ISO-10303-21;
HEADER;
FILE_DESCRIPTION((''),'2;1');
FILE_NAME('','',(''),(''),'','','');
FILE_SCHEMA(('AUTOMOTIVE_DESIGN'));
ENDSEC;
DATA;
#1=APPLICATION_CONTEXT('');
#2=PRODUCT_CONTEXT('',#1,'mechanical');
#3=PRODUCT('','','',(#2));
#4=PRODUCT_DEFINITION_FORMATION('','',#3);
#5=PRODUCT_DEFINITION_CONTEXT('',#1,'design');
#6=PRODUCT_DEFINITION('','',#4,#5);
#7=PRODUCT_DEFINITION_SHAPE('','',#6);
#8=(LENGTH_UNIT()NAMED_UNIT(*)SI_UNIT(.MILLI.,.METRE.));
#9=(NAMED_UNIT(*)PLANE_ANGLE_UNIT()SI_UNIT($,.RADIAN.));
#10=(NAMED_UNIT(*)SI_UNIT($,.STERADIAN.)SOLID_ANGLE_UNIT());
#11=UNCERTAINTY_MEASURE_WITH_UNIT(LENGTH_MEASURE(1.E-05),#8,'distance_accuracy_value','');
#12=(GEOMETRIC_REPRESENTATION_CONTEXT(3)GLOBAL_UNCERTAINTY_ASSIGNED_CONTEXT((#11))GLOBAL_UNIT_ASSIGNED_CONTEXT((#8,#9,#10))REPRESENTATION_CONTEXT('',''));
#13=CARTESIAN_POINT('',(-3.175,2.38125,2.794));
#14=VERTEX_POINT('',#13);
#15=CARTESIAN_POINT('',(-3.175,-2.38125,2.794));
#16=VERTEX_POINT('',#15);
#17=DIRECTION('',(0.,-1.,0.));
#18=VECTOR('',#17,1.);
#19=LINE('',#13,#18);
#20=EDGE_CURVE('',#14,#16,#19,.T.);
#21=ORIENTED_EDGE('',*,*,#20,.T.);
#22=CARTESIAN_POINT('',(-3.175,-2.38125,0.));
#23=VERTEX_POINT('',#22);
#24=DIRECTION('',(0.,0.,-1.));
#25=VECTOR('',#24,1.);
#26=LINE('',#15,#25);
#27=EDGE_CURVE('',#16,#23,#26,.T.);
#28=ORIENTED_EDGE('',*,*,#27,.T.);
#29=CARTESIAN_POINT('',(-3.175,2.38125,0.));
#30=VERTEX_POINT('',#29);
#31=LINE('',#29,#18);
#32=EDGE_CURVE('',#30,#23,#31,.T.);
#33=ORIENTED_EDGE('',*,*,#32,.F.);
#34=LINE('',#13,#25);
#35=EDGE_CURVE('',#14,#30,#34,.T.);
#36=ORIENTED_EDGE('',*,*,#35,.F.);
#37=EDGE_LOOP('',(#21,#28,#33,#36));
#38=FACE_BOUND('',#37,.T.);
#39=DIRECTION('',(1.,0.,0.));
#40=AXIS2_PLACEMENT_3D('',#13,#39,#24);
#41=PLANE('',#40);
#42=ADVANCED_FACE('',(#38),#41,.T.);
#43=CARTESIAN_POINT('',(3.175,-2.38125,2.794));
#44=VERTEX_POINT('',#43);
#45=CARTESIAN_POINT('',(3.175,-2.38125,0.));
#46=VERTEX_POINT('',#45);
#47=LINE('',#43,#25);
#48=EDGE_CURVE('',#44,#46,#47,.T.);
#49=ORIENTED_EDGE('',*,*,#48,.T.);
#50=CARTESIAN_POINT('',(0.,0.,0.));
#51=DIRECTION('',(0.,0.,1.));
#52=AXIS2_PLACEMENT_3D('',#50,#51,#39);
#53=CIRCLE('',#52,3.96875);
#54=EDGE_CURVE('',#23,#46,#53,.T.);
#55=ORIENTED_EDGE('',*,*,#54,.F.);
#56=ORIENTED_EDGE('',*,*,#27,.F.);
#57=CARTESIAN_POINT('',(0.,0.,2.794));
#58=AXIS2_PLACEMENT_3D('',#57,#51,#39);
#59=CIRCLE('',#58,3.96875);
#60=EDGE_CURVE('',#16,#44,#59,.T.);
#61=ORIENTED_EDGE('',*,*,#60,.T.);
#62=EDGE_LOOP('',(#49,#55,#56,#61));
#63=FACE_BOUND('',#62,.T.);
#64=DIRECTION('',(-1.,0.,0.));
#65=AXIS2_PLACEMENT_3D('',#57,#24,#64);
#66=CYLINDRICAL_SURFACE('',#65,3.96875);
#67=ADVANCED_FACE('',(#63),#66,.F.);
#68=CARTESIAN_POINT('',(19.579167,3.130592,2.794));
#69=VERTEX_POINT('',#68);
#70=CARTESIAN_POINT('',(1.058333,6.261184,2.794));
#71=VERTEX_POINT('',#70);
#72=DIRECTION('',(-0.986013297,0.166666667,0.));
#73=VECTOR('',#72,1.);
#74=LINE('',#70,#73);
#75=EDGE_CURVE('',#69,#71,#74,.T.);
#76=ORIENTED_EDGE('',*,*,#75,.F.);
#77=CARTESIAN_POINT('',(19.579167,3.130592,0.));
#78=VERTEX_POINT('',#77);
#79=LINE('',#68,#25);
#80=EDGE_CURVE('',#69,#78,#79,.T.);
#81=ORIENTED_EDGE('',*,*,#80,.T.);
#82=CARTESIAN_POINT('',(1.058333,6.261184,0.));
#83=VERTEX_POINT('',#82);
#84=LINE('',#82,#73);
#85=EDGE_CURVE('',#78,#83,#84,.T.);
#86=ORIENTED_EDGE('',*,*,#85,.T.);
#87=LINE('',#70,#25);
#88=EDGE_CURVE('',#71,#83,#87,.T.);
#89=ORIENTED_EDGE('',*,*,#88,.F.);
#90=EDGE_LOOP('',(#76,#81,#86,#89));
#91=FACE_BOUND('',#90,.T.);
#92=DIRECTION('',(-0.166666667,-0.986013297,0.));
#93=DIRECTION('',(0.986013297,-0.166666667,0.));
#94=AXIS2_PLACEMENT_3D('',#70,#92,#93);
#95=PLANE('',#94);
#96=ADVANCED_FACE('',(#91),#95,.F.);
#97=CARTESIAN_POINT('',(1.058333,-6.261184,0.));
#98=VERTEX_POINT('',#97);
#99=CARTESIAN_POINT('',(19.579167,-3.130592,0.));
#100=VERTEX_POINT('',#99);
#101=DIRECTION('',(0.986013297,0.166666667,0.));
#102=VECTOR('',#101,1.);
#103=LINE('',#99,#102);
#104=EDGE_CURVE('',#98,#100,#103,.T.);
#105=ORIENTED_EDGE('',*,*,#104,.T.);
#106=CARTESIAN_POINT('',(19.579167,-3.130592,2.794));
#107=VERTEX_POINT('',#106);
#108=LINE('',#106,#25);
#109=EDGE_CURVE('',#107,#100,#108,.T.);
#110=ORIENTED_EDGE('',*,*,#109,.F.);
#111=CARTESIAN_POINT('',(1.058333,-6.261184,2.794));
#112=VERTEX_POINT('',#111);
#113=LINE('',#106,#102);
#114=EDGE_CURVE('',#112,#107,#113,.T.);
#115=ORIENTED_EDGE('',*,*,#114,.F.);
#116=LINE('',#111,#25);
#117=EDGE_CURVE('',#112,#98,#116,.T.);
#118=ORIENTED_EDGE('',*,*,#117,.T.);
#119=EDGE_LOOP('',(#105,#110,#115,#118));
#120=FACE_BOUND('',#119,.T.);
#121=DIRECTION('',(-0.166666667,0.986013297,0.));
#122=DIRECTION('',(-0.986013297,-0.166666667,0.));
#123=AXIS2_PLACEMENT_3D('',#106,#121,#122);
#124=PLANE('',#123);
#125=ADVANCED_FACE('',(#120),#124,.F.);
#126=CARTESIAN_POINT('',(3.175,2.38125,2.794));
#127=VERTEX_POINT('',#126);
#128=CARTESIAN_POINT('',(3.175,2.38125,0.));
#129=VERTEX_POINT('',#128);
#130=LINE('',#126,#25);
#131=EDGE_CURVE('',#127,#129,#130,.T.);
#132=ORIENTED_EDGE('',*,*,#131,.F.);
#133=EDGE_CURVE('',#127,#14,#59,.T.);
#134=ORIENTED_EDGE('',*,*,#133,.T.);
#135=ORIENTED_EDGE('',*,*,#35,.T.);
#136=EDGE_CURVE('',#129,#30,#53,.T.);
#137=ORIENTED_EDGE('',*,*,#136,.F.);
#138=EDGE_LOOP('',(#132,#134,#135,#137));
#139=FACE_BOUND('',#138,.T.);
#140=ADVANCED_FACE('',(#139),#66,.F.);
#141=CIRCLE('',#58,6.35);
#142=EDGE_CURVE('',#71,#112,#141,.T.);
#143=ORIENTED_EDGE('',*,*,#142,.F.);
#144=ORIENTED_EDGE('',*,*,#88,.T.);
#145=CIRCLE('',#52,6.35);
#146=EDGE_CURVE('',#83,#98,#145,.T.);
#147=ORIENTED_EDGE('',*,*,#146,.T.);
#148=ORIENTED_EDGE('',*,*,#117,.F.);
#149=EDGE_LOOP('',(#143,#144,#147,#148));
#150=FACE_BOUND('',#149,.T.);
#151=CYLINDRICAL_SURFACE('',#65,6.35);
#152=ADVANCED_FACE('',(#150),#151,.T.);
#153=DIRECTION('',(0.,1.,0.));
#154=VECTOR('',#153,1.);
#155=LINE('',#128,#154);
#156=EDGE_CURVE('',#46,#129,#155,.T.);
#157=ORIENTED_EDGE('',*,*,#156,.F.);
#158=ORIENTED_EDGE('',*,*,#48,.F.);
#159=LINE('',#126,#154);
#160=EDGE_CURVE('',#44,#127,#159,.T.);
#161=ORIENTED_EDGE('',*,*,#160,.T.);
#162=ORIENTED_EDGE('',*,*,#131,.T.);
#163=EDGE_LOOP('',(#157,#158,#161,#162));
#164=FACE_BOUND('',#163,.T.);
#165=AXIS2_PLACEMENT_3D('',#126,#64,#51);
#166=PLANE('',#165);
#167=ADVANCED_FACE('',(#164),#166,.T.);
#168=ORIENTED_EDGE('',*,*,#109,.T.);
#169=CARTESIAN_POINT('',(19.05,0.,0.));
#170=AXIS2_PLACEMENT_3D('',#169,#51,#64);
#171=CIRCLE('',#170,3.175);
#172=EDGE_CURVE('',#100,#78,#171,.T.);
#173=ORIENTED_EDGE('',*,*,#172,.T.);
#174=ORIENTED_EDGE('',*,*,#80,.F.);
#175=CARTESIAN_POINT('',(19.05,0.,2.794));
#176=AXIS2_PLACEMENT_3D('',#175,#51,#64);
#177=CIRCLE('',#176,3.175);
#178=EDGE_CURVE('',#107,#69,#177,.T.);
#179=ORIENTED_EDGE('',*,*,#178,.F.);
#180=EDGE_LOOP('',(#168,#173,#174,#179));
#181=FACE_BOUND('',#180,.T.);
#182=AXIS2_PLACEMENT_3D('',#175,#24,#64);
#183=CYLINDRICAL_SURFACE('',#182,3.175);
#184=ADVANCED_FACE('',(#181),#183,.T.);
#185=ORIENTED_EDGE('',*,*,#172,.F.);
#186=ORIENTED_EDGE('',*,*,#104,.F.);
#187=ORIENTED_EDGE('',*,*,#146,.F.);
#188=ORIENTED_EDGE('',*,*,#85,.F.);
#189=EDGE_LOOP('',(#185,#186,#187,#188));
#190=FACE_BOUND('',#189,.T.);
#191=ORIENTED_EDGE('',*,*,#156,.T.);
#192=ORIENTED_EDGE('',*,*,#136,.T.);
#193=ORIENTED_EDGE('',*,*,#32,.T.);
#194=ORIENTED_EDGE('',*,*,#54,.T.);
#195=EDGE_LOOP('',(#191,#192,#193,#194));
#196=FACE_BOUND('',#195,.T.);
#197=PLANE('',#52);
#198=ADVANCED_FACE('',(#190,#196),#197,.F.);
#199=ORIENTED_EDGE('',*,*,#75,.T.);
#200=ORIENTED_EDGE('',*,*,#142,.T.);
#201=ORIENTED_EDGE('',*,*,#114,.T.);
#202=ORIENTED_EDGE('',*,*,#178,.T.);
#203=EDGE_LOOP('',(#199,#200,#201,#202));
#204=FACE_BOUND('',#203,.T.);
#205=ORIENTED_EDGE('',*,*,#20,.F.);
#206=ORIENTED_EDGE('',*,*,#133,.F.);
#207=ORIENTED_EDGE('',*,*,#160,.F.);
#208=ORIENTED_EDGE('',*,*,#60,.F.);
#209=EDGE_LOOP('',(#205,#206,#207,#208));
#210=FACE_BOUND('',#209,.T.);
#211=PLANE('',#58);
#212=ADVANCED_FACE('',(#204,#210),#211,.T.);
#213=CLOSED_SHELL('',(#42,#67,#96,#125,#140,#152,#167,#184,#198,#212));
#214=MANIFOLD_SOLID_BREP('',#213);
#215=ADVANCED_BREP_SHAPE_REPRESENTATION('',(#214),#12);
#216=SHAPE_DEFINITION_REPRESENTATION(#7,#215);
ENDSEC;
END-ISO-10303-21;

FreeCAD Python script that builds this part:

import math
import FreeCAD as App
import Part
import Sketcher
Q = App.Units.Quantity

doc = App.newDocument("Part")
body = doc.addObject("PartDesign::Body", "Body")

sketch1 = body.newObject("Sketcher::SketchObject", "Sketch")
sketch1.AttachmentSupport = (doc.getObject("XY_Plane"), [""])
sketch1.MapMode = "FlatFace"
sketch1.addGeometry([
    Part.LineSegment(App.Vector(19.579167, 3.130592, 0), App.Vector(1.058333, 6.261184, 0)),
    Part.ArcOfCircle(Part.Circle(App.Vector(0, 0, 0), App.Vector(0, 0, 1), 6.35), math.radians(80.405932), math.radians(279.594068)),
    Part.LineSegment(App.Vector(1.058333, -6.261184, 0), App.Vector(19.579167, -3.130592, 0)),
    Part.ArcOfCircle(Part.Circle(App.Vector(19.05, 0, 0), App.Vector(0, 0, 1), 3.175), math.radians(-80.405932), math.radians(80.405932)),
    Part.ArcOfCircle(Part.Circle(App.Vector(0, 0, 0), App.Vector(0, 0, 1), 3.96875), math.radians(36.869898), math.radians(143.130102)),
    Part.LineSegment(App.Vector(3.175, 2.38125, 0), App.Vector(3.175, -2.38125, 0)),
    Part.ArcOfCircle(Part.Circle(App.Vector(0, 0, 0), App.Vector(0, 0, 1), 3.96875), math.radians(-143.130102), math.radians(-36.869898)),
    Part.LineSegment(App.Vector(-3.175, -2.38125, 0), App.Vector(-3.175, 2.38125, 0)),
], False)
sketch1.addConstraint([
    Sketcher.Constraint("Tangent", 0, 2, 1, 1),
    Sketcher.Constraint("Tangent", 1, 2, 2, 1),
    Sketcher.Constraint("Tangent", 2, 2, 3, 1),
    Sketcher.Constraint("Tangent", 3, 2, 0, 1),
    Sketcher.Constraint("Coincident", 4, 1, 5, 1),
    Sketcher.Constraint("Coincident", 5, 2, 6, 2),
    Sketcher.Constraint("Coincident", 6, 1, 7, 1),
    Sketcher.Constraint("Coincident", 7, 2, 4, 2),
    Sketcher.Constraint("Vertical", 5),
    Sketcher.Constraint("Vertical", 7),
    Sketcher.Constraint("Coincident", 1, 3, -1, 1),
    Sketcher.Constraint("Coincident", 4, 3, -1, 1),
    Sketcher.Constraint("Coincident", 6, 3, -1, 1),
    Sketcher.Constraint("Equal", 4, 6),
    Sketcher.Constraint("PointOnObject", 3, 3, -1),
    Sketcher.Constraint("Horizontal", 5, 2, 6, 1),
    Sketcher.Constraint("Radius", 1, Q("0.25 in")),
    Sketcher.Constraint("Radius", 3, Q("0.125 in")),
    Sketcher.Constraint("Radius", 4, Q("0.15625 in")),
    Sketcher.Constraint("DistanceY", 5, 2, 5, 1, Q("0.1875 in")),
    Sketcher.Constraint("DistanceX", -1, 1, 3, 3, Q("0.75 in")),
])
pad1 = body.newObject("PartDesign::Pad", "Pad")
pad1.Profile = sketch1
pad1.Length = Q("0.11 in")

doc.recompute()
